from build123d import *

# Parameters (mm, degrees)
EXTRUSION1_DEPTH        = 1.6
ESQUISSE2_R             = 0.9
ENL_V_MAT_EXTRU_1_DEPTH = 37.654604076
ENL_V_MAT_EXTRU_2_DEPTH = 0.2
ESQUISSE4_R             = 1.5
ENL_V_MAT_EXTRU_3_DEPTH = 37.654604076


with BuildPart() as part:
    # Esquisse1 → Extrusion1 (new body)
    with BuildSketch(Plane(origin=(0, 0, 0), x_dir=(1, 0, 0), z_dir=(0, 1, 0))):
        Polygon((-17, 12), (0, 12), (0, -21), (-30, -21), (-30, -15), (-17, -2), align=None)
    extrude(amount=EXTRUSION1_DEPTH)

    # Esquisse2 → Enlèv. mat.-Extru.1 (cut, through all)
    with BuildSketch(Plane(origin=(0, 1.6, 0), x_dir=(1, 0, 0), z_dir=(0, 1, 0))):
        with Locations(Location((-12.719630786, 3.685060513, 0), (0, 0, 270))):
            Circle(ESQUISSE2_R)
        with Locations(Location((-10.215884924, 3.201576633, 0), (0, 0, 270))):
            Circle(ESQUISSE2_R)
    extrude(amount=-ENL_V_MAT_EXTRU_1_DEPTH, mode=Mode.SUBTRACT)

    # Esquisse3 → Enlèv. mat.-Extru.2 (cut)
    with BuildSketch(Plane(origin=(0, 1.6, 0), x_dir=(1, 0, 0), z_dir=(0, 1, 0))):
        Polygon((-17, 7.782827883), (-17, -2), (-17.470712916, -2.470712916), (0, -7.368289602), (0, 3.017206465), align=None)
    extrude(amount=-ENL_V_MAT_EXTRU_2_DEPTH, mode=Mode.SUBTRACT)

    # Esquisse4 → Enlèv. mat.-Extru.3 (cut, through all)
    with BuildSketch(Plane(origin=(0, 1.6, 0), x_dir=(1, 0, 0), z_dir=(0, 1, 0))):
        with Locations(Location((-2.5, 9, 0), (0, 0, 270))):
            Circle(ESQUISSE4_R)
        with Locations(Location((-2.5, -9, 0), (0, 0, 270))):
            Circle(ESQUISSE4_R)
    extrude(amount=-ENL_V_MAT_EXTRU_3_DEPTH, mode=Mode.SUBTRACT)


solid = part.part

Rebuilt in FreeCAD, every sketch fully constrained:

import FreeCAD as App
import Part
import Sketcher
Q = App.Units.Quantity

doc = App.newDocument("Part")
params = doc.addObject("Spreadsheet::Sheet", "Params")
for row, (alias, value) in enumerate([
    ("sketch1_width", "17 mm"),
    ("sketch1_width2", "30 mm"),
    ("sketch1_height", "14 mm"),
    ("sketch1_height2", "6 mm"),
    ("sketch1_height3", "33 mm"),
    ("pad1_length", "1.6 mm"),
    ("sketch2_diameter", "1.8 mm"),
    ("pocket2_length", "0.2 mm"),
    ("sketch4_diameter", "3 mm"),
], start=1):
    params.set(f"A{row}", alias)
    params.set(f"B{row}", "=" + value)
    params.setAlias(f"B{row}", alias)

body = doc.addObject("PartDesign::Body", "Body")

# Sketch on XZ plane
sketch1 = body.newObject("Sketcher::SketchObject", "Sketch")
sketch1.AttachmentSupport = (doc.getObject("XZ_Plane"), [""])
sketch1.MapMode = "FlatFace"
sketch1.addGeometry([
    Part.LineSegment(App.Vector(0, -12, 0), App.Vector(-17, -12, 0)),  # 0
    Part.LineSegment(App.Vector(-17, -12, 0), App.Vector(-17, 2, 0)),  # 1
    Part.LineSegment(App.Vector(-17, 2, 0), App.Vector(-30, 15, 0)),  # 2
    Part.LineSegment(App.Vector(-30, 15, 0), App.Vector(-30, 21, 0)),  # 3
    Part.LineSegment(App.Vector(-30, 21, 0), App.Vector(0, 21, 0)),  # 4
    Part.LineSegment(App.Vector(0, 21, 0), App.Vector(0, -12, 0)),  # 5
], False)
sketch1.addConstraint([
    Sketcher.Constraint("Coincident", 0, 2, 1, 1),
    Sketcher.Constraint("Coincident", 1, 2, 2, 1),
    Sketcher.Constraint("Coincident", 2, 2, 3, 1),
    Sketcher.Constraint("Coincident", 3, 2, 4, 1),
    Sketcher.Constraint("Coincident", 4, 2, 5, 1),
    Sketcher.Constraint("Coincident", 5, 2, 0, 1),
    Sketcher.Constraint("Horizontal", 0),
    Sketcher.Constraint("Vertical", 1),
    Sketcher.Constraint("Vertical", 3),
    Sketcher.Constraint("Horizontal", 4),
    Sketcher.Constraint("Vertical", 5),
    Sketcher.Constraint("PointOnObject", 4, 2, -2),
    Sketcher.Constraint("DistanceX", 0, 2, 0, 1, Q("17 mm")),
    Sketcher.Constraint("DistanceX", 4, 1, 4, 2, Q("30 mm")),
    Sketcher.Constraint("DistanceY", 1, 1, 1, 2, Q("14 mm")),
    Sketcher.Constraint("DistanceY", 3, 1, 3, 2, Q("6 mm")),
    Sketcher.Constraint("DistanceY", 5, 2, 5, 1, Q("33 mm")),
    Sketcher.Constraint("DistanceY", 0, 2, -1, 1, Q("12 mm")),
])
sketch1.setExpression("Constraints[12]", "Params.sketch1_width")
sketch1.setExpression("Constraints[13]", "Params.sketch1_width2")
sketch1.setExpression("Constraints[14]", "Params.sketch1_height")
sketch1.setExpression("Constraints[15]", "Params.sketch1_height2")
sketch1.setExpression("Constraints[16]", "Params.sketch1_height3")
pad1 = body.newObject("PartDesign::Pad", "Pad")
pad1.Profile = sketch1
pad1.setExpression("Length", "Params.pad1_length")
pad1.Reversed = True

# Sketch on XZ plane
sketch2 = body.newObject("Sketcher::SketchObject", "Sketch001")
sketch2.AttachmentSupport = (doc.getObject("XZ_Plane"), [""])
sketch2.MapMode = "FlatFace"
sketch2.AttachmentOffset = App.Placement(App.Vector(0, 0, -1.6), App.Rotation())
sketch2.addGeometry([
    Part.Circle(App.Vector(-12.7, -3.7, 0), App.Vector(0, 0, 1), 0.9),
    Part.Circle(App.Vector(-10.2, -3.2, 0), App.Vector(0, 0, 1), 0.9),
], False)
sketch2.addConstraint([
    Sketcher.Constraint("Equal", 0, 1),
    Sketcher.Constraint("Diameter", 0, Q("1.8 mm")),
    Sketcher.Constraint("DistanceX", 0, 3, -1, 1, Q("12.719631 mm")),
    Sketcher.Constraint("DistanceY", 0, 3, -1, 1, Q("3.685061 mm")),
    Sketcher.Constraint("DistanceX", 1, 3, -1, 1, Q("10.215885 mm")),
    Sketcher.Constraint("DistanceY", 1, 3, -1, 1, Q("3.201577 mm")),
])
sketch2.setExpression("Constraints[1]", "Params.sketch2_diameter")
pocket1 = body.newObject("PartDesign::Pocket", "Pocket")
pocket1.Profile = sketch2
pocket1.Type = "ThroughAll"
pocket1.Reversed = True

# Sketch on XZ plane
sketch3 = body.newObject("Sketcher::SketchObject", "Sketch002")
sketch3.AttachmentSupport = (doc.getObject("XZ_Plane"), [""])
sketch3.MapMode = "FlatFace"
sketch3.AttachmentOffset = App.Placement(App.Vector(0, 0, -1.6), App.Rotation())
sketch3.addGeometry([
    Part.LineSegment(App.Vector(-17, -7.782828, 0), App.Vector(-17, 2, 0)),  # 0
    Part.LineSegment(App.Vector(-17, 2, 0), App.Vector(-17.470713, 2.470713, 0)),  # 1
    Part.LineSegment(App.Vector(-17.470713, 2.470713, 0), App.Vector(0, 7.36829, 0)),  # 2
    Part.LineSegment(App.Vector(0, 7.36829, 0), App.Vector(0, -3.017206, 0)),  # 3
    Part.LineSegment(App.Vector(0, -3.017206, 0), App.Vector(-17, -7.782828, 0)),  # 4
], False)
sketch3.addConstraint([
    Sketcher.Constraint("Coincident", 0, 2, 1, 1),
    Sketcher.Constraint("Coincident", 1, 2, 2, 1),
    Sketcher.Constraint("Coincident", 2, 2, 3, 1),
    Sketcher.Constraint("Coincident", 3, 2, 4, 1),
    Sketcher.Constraint("Coincident", 4, 2, 0, 1),
    Sketcher.Constraint("Vertical", 0),
    Sketcher.Constraint("Vertical", 3),
    Sketcher.Constraint("PointOnObject", 2, 2, -2),
    Sketcher.Constraint("DistanceX", 0, 2, -1, 1, Q("17 mm")),
    Sketcher.Constraint("DistanceY", -1, 1, 0, 2, Q("2 mm")),
    Sketcher.Constraint("Distance", 1, Q("0.665689 mm")),
    Sketcher.Constraint("DistanceY", 0, 1, 0, 2, Q("9.782828 mm")),
    Sketcher.Constraint("DistanceY", 3, 2, 3, 1, Q("10.385496 mm")),
    Sketcher.Constraint("DistanceY", -1, 1, 2, 2, Q("7.36829 mm")),
    Sketcher.Constraint("DistanceY", 3, 2, 1, 2, Q("5.487919 mm")),
])
pocket2 = body.newObject("PartDesign::Pocket", "Pocket001")
pocket2.Profile = sketch3
pocket2.setExpression("Length", "Params.pocket2_length")
pocket2.Reversed = True

# Sketch on XZ plane
sketch4 = body.newObject("Sketcher::SketchObject", "Sketch003")
sketch4.AttachmentSupport = (doc.getObject("XZ_Plane"), [""])
sketch4.MapMode = "FlatFace"
sketch4.AttachmentOffset = App.Placement(App.Vector(0, 0, -1.6), App.Rotation())
sketch4.addGeometry([
    Part.Circle(App.Vector(-2.5, -9, 0), App.Vector(0, 0, 1), 1.5),
    Part.Circle(App.Vector(-2.5, 9, 0), App.Vector(0, 0, 1), 1.5),
], False)
sketch4.addConstraint([
    Sketcher.Constraint("Equal", 0, 1),
    Sketcher.Constraint("Symmetric", 0, 3, 1, 3, -1),
    Sketcher.Constraint("Diameter", 0, Q("3 mm")),
    Sketcher.Constraint("DistanceY", 0, 3, -1, 1, Q("9 mm")),
    Sketcher.Constraint("DistanceX", 0, 3, -1, 1, Q("2.5 mm")),
])
sketch4.setExpression("Constraints[2]", "Params.sketch4_diameter")
pocket3 = body.newObject("PartDesign::Pocket", "Pocket002")
pocket3.Profile = sketch4
pocket3.Type = "ThroughAll"
pocket3.Reversed = True

doc.recompute()
